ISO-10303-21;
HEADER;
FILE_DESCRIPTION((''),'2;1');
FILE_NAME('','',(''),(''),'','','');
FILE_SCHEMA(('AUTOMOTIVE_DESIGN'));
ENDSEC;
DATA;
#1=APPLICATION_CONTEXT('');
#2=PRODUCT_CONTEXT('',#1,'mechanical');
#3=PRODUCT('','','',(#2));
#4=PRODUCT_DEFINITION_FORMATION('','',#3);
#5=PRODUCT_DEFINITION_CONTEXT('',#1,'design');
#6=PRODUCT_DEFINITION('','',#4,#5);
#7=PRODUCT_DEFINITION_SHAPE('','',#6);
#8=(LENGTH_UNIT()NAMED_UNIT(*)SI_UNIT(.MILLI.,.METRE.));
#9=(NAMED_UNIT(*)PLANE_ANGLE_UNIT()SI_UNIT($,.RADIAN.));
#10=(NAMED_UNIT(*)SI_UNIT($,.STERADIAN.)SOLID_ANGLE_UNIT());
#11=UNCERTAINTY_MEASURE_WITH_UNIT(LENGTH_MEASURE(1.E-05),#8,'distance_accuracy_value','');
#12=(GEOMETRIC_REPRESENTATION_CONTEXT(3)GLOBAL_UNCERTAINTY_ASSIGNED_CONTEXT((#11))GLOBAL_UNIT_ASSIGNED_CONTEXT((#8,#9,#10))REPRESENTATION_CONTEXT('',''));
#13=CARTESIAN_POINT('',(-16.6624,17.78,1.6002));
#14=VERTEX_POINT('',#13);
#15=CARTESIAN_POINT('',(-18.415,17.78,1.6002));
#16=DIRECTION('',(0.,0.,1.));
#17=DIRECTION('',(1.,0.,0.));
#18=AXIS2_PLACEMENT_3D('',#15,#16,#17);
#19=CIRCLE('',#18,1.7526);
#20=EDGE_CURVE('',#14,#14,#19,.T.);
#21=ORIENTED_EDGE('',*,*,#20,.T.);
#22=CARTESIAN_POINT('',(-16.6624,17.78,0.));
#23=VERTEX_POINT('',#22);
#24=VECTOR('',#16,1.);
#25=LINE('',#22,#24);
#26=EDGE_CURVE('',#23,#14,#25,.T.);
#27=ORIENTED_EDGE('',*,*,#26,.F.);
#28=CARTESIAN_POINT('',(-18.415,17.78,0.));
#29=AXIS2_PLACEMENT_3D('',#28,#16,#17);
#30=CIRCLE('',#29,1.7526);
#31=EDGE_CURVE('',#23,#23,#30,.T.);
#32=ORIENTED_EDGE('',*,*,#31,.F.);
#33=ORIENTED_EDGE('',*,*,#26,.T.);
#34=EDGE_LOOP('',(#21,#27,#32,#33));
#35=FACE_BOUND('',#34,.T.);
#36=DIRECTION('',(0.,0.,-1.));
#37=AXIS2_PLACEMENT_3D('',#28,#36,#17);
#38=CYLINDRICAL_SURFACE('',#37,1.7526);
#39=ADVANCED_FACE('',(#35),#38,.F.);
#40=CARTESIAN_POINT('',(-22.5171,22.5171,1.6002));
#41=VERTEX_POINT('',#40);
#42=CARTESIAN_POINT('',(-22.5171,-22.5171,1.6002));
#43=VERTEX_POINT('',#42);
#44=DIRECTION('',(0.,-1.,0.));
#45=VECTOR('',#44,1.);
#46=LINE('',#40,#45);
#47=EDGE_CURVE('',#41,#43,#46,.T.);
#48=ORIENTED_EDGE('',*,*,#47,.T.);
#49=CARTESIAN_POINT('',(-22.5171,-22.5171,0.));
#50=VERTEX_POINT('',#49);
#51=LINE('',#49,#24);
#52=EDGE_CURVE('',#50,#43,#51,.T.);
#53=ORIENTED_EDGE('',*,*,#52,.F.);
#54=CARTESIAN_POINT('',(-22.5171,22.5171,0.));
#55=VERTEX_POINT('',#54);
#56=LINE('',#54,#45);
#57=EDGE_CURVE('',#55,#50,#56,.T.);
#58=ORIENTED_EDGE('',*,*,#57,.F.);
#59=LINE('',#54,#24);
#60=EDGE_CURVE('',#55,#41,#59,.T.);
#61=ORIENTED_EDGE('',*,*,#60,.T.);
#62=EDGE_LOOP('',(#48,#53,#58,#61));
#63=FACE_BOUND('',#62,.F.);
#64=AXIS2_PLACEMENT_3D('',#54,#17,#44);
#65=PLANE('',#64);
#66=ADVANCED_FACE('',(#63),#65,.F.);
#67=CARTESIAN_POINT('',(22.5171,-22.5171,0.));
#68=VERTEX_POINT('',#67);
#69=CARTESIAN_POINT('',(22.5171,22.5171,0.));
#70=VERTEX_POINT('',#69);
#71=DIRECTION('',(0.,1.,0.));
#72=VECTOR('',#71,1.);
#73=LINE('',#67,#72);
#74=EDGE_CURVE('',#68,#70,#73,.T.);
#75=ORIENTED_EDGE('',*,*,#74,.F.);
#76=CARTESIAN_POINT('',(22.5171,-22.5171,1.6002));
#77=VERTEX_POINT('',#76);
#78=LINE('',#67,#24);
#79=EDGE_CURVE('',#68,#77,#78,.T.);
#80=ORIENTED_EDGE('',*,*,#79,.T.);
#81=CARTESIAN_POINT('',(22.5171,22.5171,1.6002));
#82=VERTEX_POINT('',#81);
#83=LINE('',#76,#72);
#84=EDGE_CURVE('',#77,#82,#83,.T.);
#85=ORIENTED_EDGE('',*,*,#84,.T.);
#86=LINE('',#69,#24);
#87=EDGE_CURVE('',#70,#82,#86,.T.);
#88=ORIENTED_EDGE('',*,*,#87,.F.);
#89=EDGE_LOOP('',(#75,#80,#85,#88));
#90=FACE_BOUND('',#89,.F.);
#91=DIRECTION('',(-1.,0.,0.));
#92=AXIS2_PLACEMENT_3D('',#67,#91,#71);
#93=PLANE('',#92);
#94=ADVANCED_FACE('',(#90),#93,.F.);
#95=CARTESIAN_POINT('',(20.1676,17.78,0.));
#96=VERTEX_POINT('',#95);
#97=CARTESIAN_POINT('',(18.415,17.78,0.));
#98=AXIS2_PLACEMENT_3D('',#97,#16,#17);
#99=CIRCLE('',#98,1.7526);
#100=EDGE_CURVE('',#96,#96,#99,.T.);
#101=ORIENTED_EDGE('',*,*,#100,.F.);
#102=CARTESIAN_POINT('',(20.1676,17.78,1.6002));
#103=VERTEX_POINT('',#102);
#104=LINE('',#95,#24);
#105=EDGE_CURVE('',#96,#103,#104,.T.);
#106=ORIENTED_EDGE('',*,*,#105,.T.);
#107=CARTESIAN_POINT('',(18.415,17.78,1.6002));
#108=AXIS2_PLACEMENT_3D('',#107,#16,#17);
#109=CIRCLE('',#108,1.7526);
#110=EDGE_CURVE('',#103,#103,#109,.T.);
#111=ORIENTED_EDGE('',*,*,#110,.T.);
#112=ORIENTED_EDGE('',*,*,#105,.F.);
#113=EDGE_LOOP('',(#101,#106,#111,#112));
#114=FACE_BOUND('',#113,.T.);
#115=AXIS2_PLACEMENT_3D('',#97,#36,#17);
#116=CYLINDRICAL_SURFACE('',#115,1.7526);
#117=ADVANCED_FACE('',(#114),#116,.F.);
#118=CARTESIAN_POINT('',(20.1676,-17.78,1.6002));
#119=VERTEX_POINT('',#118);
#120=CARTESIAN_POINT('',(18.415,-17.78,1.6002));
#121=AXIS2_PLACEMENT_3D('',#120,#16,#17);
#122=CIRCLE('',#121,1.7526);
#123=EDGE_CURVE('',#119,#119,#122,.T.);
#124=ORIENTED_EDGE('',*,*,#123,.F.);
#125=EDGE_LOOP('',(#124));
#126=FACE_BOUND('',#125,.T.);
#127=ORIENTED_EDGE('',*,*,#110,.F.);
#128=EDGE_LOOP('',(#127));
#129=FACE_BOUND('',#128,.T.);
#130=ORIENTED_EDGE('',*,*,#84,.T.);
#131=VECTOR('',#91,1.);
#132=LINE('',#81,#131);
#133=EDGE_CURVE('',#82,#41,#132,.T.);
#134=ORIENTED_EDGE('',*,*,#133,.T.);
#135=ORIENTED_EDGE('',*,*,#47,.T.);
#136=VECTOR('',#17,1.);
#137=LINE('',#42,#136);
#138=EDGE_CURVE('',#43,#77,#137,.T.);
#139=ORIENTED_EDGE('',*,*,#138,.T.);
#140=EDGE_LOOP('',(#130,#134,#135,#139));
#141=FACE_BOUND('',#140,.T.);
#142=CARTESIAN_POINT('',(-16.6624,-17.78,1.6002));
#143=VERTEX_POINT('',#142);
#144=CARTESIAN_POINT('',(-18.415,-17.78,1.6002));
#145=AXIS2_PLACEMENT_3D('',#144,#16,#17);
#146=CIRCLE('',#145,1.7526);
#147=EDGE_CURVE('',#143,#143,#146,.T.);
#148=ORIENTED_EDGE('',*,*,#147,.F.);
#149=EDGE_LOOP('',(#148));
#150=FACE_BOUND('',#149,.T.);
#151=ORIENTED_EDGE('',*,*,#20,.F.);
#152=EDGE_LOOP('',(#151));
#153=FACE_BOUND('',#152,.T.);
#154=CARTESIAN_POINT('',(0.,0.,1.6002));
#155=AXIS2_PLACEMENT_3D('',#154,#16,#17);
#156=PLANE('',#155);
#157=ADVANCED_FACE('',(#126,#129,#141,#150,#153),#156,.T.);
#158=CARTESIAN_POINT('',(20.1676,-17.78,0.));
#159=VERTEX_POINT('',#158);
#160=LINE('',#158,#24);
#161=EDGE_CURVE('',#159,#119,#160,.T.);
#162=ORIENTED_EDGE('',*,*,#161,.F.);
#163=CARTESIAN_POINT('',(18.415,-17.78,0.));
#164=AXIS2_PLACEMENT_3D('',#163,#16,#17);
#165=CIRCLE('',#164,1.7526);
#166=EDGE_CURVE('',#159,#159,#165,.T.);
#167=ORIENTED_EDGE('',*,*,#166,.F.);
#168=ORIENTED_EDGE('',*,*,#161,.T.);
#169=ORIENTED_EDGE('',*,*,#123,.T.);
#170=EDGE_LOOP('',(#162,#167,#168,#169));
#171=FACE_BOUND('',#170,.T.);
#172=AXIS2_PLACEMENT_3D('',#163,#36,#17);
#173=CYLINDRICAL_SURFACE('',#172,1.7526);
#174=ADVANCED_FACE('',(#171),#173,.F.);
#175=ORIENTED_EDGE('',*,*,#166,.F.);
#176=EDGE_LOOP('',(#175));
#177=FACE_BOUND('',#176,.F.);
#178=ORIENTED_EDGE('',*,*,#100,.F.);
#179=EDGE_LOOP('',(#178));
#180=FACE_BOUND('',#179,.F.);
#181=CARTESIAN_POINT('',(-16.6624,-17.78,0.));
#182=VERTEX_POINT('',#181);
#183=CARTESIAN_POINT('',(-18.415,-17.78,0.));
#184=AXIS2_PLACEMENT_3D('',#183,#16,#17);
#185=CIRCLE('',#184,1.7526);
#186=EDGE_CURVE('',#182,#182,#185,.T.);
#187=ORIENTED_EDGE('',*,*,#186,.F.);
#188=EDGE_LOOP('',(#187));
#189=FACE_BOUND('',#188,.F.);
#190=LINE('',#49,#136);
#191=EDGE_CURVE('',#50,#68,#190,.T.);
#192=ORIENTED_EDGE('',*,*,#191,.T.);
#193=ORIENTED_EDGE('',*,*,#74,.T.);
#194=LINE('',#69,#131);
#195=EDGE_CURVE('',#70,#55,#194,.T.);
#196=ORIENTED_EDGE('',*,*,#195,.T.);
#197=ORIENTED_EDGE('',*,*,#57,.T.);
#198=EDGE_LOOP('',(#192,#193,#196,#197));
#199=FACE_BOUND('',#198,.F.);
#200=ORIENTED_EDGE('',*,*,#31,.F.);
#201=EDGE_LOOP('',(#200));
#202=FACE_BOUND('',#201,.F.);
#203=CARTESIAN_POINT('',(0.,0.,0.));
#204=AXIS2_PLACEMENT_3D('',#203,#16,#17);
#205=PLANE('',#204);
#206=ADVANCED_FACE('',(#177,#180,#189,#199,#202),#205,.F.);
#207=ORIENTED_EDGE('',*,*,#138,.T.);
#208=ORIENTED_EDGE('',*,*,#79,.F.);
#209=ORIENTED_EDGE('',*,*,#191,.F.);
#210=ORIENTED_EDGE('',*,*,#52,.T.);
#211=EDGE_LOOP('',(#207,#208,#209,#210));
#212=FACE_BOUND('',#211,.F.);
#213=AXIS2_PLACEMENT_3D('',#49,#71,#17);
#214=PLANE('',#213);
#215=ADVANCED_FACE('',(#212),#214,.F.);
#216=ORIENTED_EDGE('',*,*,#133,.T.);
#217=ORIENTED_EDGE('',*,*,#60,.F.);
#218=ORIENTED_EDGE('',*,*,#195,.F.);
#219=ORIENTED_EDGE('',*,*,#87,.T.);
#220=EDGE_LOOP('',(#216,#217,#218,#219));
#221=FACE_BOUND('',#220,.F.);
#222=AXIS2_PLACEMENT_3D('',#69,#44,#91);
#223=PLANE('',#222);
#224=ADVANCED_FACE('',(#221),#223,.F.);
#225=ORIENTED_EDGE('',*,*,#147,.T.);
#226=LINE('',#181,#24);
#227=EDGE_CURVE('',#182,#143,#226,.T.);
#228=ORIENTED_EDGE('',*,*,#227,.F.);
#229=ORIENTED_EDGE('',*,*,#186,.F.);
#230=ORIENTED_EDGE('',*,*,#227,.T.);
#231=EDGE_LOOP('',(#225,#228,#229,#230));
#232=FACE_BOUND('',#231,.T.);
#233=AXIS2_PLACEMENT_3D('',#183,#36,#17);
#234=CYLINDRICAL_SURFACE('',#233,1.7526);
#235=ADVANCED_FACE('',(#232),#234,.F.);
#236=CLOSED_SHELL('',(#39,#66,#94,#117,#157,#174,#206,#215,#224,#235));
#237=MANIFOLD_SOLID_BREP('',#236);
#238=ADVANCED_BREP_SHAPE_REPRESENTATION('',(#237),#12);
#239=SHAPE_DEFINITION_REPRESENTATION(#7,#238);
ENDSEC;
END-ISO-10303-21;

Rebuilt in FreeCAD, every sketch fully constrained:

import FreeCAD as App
import Part
import Sketcher
Q = App.Units.Quantity


def add_polygon(sketch, points):
    """Adds a closed chain of lines whose ends are joined by coincident constraints."""
    first, n = sketch.GeometryCount, len(points)
    for a, b in zip(points, points[1:] + points[:1]):
        sketch.addGeometry(Part.LineSegment(App.Vector(*a, 0), App.Vector(*b, 0)), False)
    for i in range(n):
        sketch.addConstraint(Sketcher.Constraint("Coincident", first + i, 2, first + (i + 1) % n, 1))

doc = App.newDocument("Part")
body = doc.addObject("PartDesign::Body", "Body")

sketch1 = body.newObject("Sketcher::SketchObject", "Sketch")
sketch1.AttachmentSupport = (doc.getObject("XY_Plane"), [""])
sketch1.MapMode = "FlatFace"
add_polygon(sketch1, [(-22.5, 22.5), (-22.5, -22.5), (22.5, -22.5), (22.5, 22.5)])
sketch1.addGeometry(Part.Circle(App.Vector(-18.4, -17.8, 0), App.Vector(0, 0, 1), 1.8), False)
sketch1.addGeometry(Part.Circle(App.Vector(18.4, -17.8, 0), App.Vector(0, 0, 1), 1.8), False)
sketch1.addGeometry(Part.Circle(App.Vector(-18.4, 17.8, 0), App.Vector(0, 0, 1), 1.8), False)
sketch1.addGeometry(Part.Circle(App.Vector(18.4, 17.8, 0), App.Vector(0, 0, 1), 1.8), False)
sketch1.addConstraint(Sketcher.Constraint("Vertical", 0))
sketch1.addConstraint(Sketcher.Constraint("Horizontal", 1))
sketch1.addConstraint(Sketcher.Constraint("Vertical", 2))
sketch1.addConstraint(Sketcher.Constraint("Horizontal", 3))
sketch1.addConstraint(Sketcher.Constraint("Equal", 4, 5))
sketch1.addConstraint(Sketcher.Constraint("Equal", 5, 6))
sketch1.addConstraint(Sketcher.Constraint("Equal", 6, 7))
sketch1.addConstraint(Sketcher.Constraint("Symmetric", 5, 3, 6, 3, -1, 1))
sketch1.addConstraint(Sketcher.Constraint("Symmetric", 4, 3, 7, 3, -1, 1))
sketch1.addConstraint(Sketcher.Constraint("Symmetric", 0, 2, 2, 2, -1, 1))
sketch1.addConstraint(Sketcher.Constraint("Symmetric", 4, 3, 5, 3, -2))
sketch1.addConstraint(Sketcher.Constraint("Equal", 3, 0))
sketch1.addConstraint(Sketcher.Constraint("Diameter", 4, Q("0.138 in")))
sketch1.addConstraint(Sketcher.Constraint("DistanceY", 4, 3, -1, 1, Q("0.7 in")))
sketch1.addConstraint(Sketcher.Constraint("DistanceX", 1, 1, 1, 2, Q("1.773 in")))
sketch1.addConstraint(Sketcher.Constraint("DistanceX", 4, 3, 5, 3, Q("1.45 in")))
pad1 = body.newObject("PartDesign::Pad", "Pad")
pad1.Profile = sketch1
pad1.Length = Q("0.063 in")

doc.recompute()
